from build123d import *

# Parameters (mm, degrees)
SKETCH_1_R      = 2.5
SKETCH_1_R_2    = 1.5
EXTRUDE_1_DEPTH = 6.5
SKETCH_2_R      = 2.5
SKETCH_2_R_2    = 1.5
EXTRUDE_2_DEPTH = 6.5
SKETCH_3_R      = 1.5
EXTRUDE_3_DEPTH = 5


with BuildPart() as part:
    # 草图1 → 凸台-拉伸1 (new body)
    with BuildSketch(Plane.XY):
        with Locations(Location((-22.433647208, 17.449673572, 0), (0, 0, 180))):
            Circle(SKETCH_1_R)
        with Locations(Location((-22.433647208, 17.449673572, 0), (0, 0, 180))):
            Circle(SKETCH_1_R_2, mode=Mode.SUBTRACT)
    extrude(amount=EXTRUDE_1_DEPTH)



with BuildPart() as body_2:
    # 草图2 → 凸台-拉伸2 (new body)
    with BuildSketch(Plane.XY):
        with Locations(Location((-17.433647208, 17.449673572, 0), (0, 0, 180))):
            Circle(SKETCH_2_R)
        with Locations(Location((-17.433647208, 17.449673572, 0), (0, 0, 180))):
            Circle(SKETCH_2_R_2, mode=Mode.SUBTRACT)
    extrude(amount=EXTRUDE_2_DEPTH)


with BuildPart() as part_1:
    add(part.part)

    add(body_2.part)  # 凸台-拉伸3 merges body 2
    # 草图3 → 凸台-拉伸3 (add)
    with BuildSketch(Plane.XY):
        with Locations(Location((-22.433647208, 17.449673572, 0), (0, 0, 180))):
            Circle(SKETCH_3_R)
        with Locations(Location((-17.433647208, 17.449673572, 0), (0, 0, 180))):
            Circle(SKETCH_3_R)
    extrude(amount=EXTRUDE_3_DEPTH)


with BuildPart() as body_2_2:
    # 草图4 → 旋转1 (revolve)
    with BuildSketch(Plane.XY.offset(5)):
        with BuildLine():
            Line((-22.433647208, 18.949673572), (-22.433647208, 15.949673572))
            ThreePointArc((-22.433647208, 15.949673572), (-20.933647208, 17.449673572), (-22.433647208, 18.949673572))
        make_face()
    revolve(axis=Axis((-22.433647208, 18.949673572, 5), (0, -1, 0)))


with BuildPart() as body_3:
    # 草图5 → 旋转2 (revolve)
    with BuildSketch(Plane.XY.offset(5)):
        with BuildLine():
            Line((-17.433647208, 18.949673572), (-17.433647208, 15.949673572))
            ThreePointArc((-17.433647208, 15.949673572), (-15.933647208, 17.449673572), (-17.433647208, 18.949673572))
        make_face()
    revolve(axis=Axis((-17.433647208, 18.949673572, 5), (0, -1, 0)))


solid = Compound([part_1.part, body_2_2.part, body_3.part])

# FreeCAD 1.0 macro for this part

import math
import FreeCAD as App
import Part
import Sketcher

doc = App.newDocument("Part")
body = doc.addObject("PartDesign::Body", "Body")

sketch1 = body.newObject("Sketcher::SketchObject", "Sketch")
sketch1.AttachmentSupport = (doc.getObject("XY_Plane"), [""])
sketch1.MapMode = "FlatFace"
sketch1.addGeometry(Part.Circle(App.Vector(-22.4, 17.4, 0), App.Vector(0, 0, 1), 2.5), False)
sketch1.addGeometry(Part.Circle(App.Vector(-22.4, 17.4, 0), App.Vector(0, 0, 1), 1.5), False)
sketch1.addConstraint(Sketcher.Constraint("Coincident", 1, 3, 0, 3))
sketch1.addConstraint(Sketcher.Constraint("Diameter", 0, 5.0))
sketch1.addConstraint(Sketcher.Constraint("Diameter", 1, 3.0))
sketch1.addConstraint(Sketcher.Constraint("DistanceX", 0, 3, -1, 1, 22.433647))
sketch1.addConstraint(Sketcher.Constraint("DistanceY", -1, 1, 0, 3, 17.449674))
pad1 = body.newObject("PartDesign::Pad", "Pad")
pad1.Profile = sketch1
pad1.Length = 6.5
body2 = doc.addObject("PartDesign::Body", "Body001")

sketch2 = body2.newObject("Sketcher::SketchObject", "Sketch001")
sketch2.AttachmentSupport = (doc.getObject("XY_Plane001"), [""])
sketch2.MapMode = "FlatFace"
sketch2.addGeometry(Part.Circle(App.Vector(-17.4, 17.4, 0), App.Vector(0, 0, 1), 2.5), False)
sketch2.addGeometry(Part.Circle(App.Vector(-17.4, 17.4, 0), App.Vector(0, 0, 1), 1.5), False)
sketch2.addConstraint(Sketcher.Constraint("Coincident", 1, 3, 0, 3))
sketch2.addConstraint(Sketcher.Constraint("Diameter", 0, 5.0))
sketch2.addConstraint(Sketcher.Constraint("Diameter", 1, 3.0))
sketch2.addConstraint(Sketcher.Constraint("DistanceX", 0, 3, -1, 1, 17.433647))
sketch2.addConstraint(Sketcher.Constraint("DistanceY", -1, 1, 0, 3, 17.449674))
pad2 = body2.newObject("PartDesign::Pad", "Pad001")
pad2.Profile = sketch2
pad2.Length = 6.5
body.AllowCompound = True
doc.recompute()

boolean = body.newObject("PartDesign::Boolean", "Boolean")
boolean.Type = "Fuse"
boolean.addObjects([body2])

sketch3 = body.newObject("Sketcher::SketchObject", "Sketch002")
sketch3.AttachmentSupport = (doc.getObject("XY_Plane"), [""])
sketch3.MapMode = "FlatFace"
sketch3.addGeometry(Part.Circle(App.Vector(-22.4, 17.4, 0), App.Vector(0, 0, 1), 1.5), False)
sketch3.addGeometry(Part.Circle(App.Vector(-17.4, 17.4, 0), App.Vector(0, 0, 1), 1.5), False)
sketch3.addConstraint(Sketcher.Constraint("Equal", 0, 1))
sketch3.addConstraint(Sketcher.Constraint("Horizontal", 0, 3, 1, 3))
sketch3.addConstraint(Sketcher.Constraint("Diameter", 0, 3.0))
sketch3.addConstraint(Sketcher.Constraint("DistanceX", 0, 3, 1, 3, 5.0))
sketch3.addConstraint(Sketcher.Constraint("DistanceX", 0, 3, -1, 1, 22.433647))
sketch3.addConstraint(Sketcher.Constraint("DistanceY", -1, 1, 0, 3, 17.449674))
pad3 = body.newObject("PartDesign::Pad", "Pad002")
pad3.Profile = sketch3
pad3.Length = 5
body3 = doc.addObject("PartDesign::Body", "Body002")

sketch4 = body3.newObject("Sketcher::SketchObject", "Sketch003")
sketch4.AttachmentSupport = (doc.getObject("XY_Plane002"), [""])
sketch4.MapMode = "FlatFace"
sketch4.AttachmentOffset = App.Placement(App.Vector(0, 0, 5), App.Rotation())
sketch4.addGeometry(Part.LineSegment(App.Vector(-22.4, 18.9, 0), App.Vector(-22.4, 15.9, 0)), False)
sketch4.addGeometry(Part.ArcOfCircle(Part.Circle(App.Vector(-22.4, 17.4, 0), App.Vector(0, 0, 1), 1.5), math.radians(-90), math.radians(90)), False)
sketch4.addGeometry(Part.LineSegment(App.Vector(-22.4, 18.9, 0), App.Vector(-22.4, 15.9, 0)), True)
sketch4.addConstraint(Sketcher.Constraint("Coincident", 0, 1, 1, 2))
sketch4.addConstraint(Sketcher.Constraint("Coincident", 1, 1, 0, 2))
sketch4.addConstraint(Sketcher.Constraint("Vertical", 0))
sketch4.addConstraint(Sketcher.Constraint("Vertical", 2))
sketch4.addConstraint(Sketcher.Constraint("Coincident", 2, 1, 0, 1))
sketch4.addConstraint(Sketcher.Constraint("Vertical", 1, 3, 0, 1))
sketch4.addConstraint(Sketcher.Constraint("Equal", 0, 2))
sketch4.addConstraint(Sketcher.Constraint("Radius", 1, 1.5))
sketch4.addConstraint(Sketcher.Constraint("DistanceX", 1, 3, -1, 1, 22.433647))
sketch4.addConstraint(Sketcher.Constraint("DistanceY", -1, 1, 1, 3, 17.449674))
revolution = body3.newObject("PartDesign::Revolution", "Revolution")
revolution.Profile = sketch4
revolution.ReferenceAxis = (sketch4, ["Axis0"])
revolution.Angle = 360
body4 = doc.addObject("PartDesign::Body", "Body003")

sketch5 = body4.newObject("Sketcher::SketchObject", "Sketch004")
sketch5.AttachmentSupport = (doc.getObject("XY_Plane003"), [""])
sketch5.MapMode = "FlatFace"
sketch5.AttachmentOffset = App.Placement(App.Vector(0, 0, 5), App.Rotation())
sketch5.addGeometry(Part.LineSegment(App.Vector(-17.4, 18.9, 0), App.Vector(-17.4, 15.9, 0)), False)
sketch5.addGeometry(Part.ArcOfCircle(Part.Circle(App.Vector(-17.4, 17.4, 0), App.Vector(0, 0, 1), 1.5), math.radians(-90), math.radians(90)), False)
sketch5.addGeometry(Part.LineSegment(App.Vector(-17.4, 18.9, 0), App.Vector(-17.4, 15.9, 0)), True)
sketch5.addConstraint(Sketcher.Constraint("Coincident", 0, 1, 1, 2))
sketch5.addConstraint(Sketcher.Constraint("Coincident", 1, 1, 0, 2))
sketch5.addConstraint(Sketcher.Constraint("Vertical", 0))
sketch5.addConstraint(Sketcher.Constraint("Vertical", 2))
sketch5.addConstraint(Sketcher.Constraint("Coincident", 2, 1, 0, 1))
sketch5.addConstraint(Sketcher.Constraint("Vertical", 1, 3, 0, 1))
sketch5.addConstraint(Sketcher.Constraint("Equal", 0, 2))
sketch5.addConstraint(Sketcher.Constraint("Radius", 1, 1.5))
sketch5.addConstraint(Sketcher.Constraint("DistanceX", 1, 3, -1, 1, 17.433647))
sketch5.addConstraint(Sketcher.Constraint("DistanceY", -1, 1, 1, 3, 17.449674))
revolution2 = body4.newObject("PartDesign::Revolution", "Revolution001")
revolution2.Profile = sketch5
revolution2.ReferenceAxis = (sketch5, ["Axis0"])
revolution2.Angle = 360

doc.recompute()
